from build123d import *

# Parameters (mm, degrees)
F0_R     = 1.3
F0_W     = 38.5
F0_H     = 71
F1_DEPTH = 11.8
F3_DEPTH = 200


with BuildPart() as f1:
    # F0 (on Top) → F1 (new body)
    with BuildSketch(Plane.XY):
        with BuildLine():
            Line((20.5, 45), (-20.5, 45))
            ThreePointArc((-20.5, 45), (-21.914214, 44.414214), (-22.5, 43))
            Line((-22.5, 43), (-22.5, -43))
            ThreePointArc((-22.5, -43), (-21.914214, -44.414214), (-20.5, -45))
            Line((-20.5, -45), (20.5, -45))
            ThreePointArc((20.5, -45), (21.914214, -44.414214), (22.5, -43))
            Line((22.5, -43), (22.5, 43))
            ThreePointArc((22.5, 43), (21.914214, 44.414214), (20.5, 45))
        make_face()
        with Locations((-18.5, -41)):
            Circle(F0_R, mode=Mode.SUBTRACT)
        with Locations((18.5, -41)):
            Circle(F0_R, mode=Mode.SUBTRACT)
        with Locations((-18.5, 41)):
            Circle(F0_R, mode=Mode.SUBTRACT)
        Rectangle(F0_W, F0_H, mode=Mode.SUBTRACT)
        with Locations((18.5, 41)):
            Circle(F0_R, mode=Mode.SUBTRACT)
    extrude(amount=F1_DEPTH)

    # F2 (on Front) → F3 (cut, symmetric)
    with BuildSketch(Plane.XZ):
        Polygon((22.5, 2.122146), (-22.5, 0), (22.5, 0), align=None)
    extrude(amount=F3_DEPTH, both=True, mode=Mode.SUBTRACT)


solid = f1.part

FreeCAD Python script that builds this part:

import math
import FreeCAD as App
import Part
import Sketcher

V = App.Vector
Q = App.Units.Quantity


def add_polygon(sketch, points):
    """Adds a closed chain of lines whose ends are joined by coincident constraints."""
    first, n = sketch.GeometryCount, len(points)
    for a, b in zip(points, points[1:] + points[:1]):
        sketch.addGeometry(Part.LineSegment(App.Vector(*a, 0), App.Vector(*b, 0)), False)
    for i in range(n):
        sketch.addConstraint(Sketcher.Constraint("Coincident", first + i, 2, first + (i + 1) % n, 1))

doc = App.newDocument("Part")
body = doc.addObject("PartDesign::Body", "Body")

sketch1 = body.newObject("Sketcher::SketchObject", "Sketch")
sketch1.AttachmentSupport = (doc.getObject("XY_Plane"), [""])
sketch1.MapMode = "FlatFace"
sketch1.addGeometry(Part.LineSegment(V(20.5, 45, 0), V(-20.5, 45, 0)), False)
sketch1.addGeometry(Part.ArcOfCircle(Part.Circle(V(-20.5, 43, 0), V(0, 0, 1), 2), math.radians(90), math.radians(180)), False)
sketch1.addGeometry(Part.LineSegment(V(-22.5, 43, 0), V(-22.5, -43, 0)), False)
sketch1.addGeometry(Part.ArcOfCircle(Part.Circle(V(-20.5, -43, 0), V(0, 0, 1), 2), math.radians(180), math.radians(270)), False)
sketch1.addGeometry(Part.LineSegment(V(-20.5, -45, 0), V(20.5, -45, 0)), False)
sketch1.addGeometry(Part.ArcOfCircle(Part.Circle(V(20.5, -43, 0), V(0, 0, 1), 2), math.radians(-90), math.radians(0)), False)
sketch1.addGeometry(Part.LineSegment(V(22.5, -43, 0), V(22.5, 43, 0)), False)
sketch1.addGeometry(Part.ArcOfCircle(Part.Circle(V(20.5, 43, 0), V(0, 0, 1), 2), math.radians(0), math.radians(90)), False)
sketch1.addGeometry(Part.Circle(V(-18.5, -41, 0), V(0, 0, 1), 1.3), False)
sketch1.addGeometry(Part.Circle(V(18.5, -41, 0), V(0, 0, 1), 1.3), False)
sketch1.addGeometry(Part.Circle(V(-18.5, 41, 0), V(0, 0, 1), 1.3), False)
add_polygon(sketch1, [(19.2, -35.5), (-19.2, -35.5), (-19.2, 35.5), (19.2, 35.5)])
sketch1.addGeometry(Part.Circle(V(18.5, 41, 0), V(0, 0, 1), 1.3), False)
sketch1.addConstraint(Sketcher.Constraint("Tangent", 0, 2, 1, 1))
sketch1.addConstraint(Sketcher.Constraint("Tangent", 1, 2, 2, 1))
sketch1.addConstraint(Sketcher.Constraint("Tangent", 2, 2, 3, 1))
sketch1.addConstraint(Sketcher.Constraint("Tangent", 3, 2, 4, 1))
sketch1.addConstraint(Sketcher.Constraint("Tangent", 4, 2, 5, 1))
sketch1.addConstraint(Sketcher.Constraint("Tangent", 5, 2, 6, 1))
sketch1.addConstraint(Sketcher.Constraint("Tangent", 6, 2, 7, 1))
sketch1.addConstraint(Sketcher.Constraint("Tangent", 7, 2, 0, 1))
sketch1.addConstraint(Sketcher.Constraint("Horizontal", 0))
sketch1.addConstraint(Sketcher.Constraint("Vertical", 2))
sketch1.addConstraint(Sketcher.Constraint("Horizontal", 4))
sketch1.addConstraint(Sketcher.Constraint("Vertical", 6))
sketch1.addConstraint(Sketcher.Constraint("Horizontal", 11))
sketch1.addConstraint(Sketcher.Constraint("Vertical", 12))
sketch1.addConstraint(Sketcher.Constraint("Horizontal", 13))
sketch1.addConstraint(Sketcher.Constraint("Vertical", 14))
sketch1.addConstraint(Sketcher.Constraint("Equal", 1, 3))
sketch1.addConstraint(Sketcher.Constraint("Equal", 3, 5))
sketch1.addConstraint(Sketcher.Constraint("Equal", 5, 7))
sketch1.addConstraint(Sketcher.Constraint("Equal", 8, 9))
sketch1.addConstraint(Sketcher.Constraint("Equal", 9, 10))
sketch1.addConstraint(Sketcher.Constraint("Equal", 10, 15))
sketch1.addConstraint(Sketcher.Constraint("Symmetric", 1, 3, 5, 3, -1, 1))
sketch1.addConstraint(Sketcher.Constraint("Symmetric", 9, 3, 10, 3, -1, 1))
sketch1.addConstraint(Sketcher.Constraint("Symmetric", 8, 3, 15, 3, -1, 1))
sketch1.addConstraint(Sketcher.Constraint("Symmetric", 11, 2, 13, 2, -1, 1))
sketch1.addConstraint(Sketcher.Constraint("Symmetric", 8, 3, 9, 3, -2))
sketch1.addConstraint(Sketcher.Constraint("Radius", 1, Q("1.999999 mm")))
sketch1.addConstraint(Sketcher.Constraint("Diameter", 8, Q("2.6 mm")))
sketch1.addConstraint(Sketcher.Constraint("DistanceX", 0, 2, 0, 1, Q("41 mm")))
sketch1.addConstraint(Sketcher.Constraint("DistanceY", 2, 2, 2, 1, Q("86 mm")))
sketch1.addConstraint(Sketcher.Constraint("DistanceY", 12, 1, 12, 2, Q("71 mm")))
sketch1.addConstraint(Sketcher.Constraint("DistanceX", 11, 2, 11, 1, Q("38.5 mm")))
sketch1.addConstraint(Sketcher.Constraint("DistanceY", 8, 3, -1, 1, Q("41 mm")))
sketch1.addConstraint(Sketcher.Constraint("DistanceX", 3, 3, 8, 3, Q("2.000001 mm")))
pad1 = body.newObject("PartDesign::Pad", "Pad")
pad1.Profile = sketch1
pad1.Length = 11.8

sketch2 = body.newObject("Sketcher::SketchObject", "Sketch001")
sketch2.AttachmentSupport = (doc.getObject("XZ_Plane"), [""])
sketch2.MapMode = "FlatFace"
add_polygon(sketch2, [(22.5, 2.1), (-22.5, 0), (22.5, 0)])
sketch2.addConstraint(Sketcher.Constraint("Horizontal", 1))
sketch2.addConstraint(Sketcher.Constraint("Vertical", 2))
sketch2.addConstraint(Sketcher.Constraint("Symmetric", 0, 2, 1, 2, -1, 1))
sketch2.addConstraint(Sketcher.Constraint("DistanceX", 1, 1, 1, 2, Q("45 mm")))
sketch2.addConstraint(Sketcher.Constraint("Angle", 0, Q("-177.3 deg")))
pocket1 = body.newObject("PartDesign::Pocket", "Pocket")
pocket1.Profile = sketch2
pocket1.Length = 400
pocket1.Midplane = True

doc.recompute()
